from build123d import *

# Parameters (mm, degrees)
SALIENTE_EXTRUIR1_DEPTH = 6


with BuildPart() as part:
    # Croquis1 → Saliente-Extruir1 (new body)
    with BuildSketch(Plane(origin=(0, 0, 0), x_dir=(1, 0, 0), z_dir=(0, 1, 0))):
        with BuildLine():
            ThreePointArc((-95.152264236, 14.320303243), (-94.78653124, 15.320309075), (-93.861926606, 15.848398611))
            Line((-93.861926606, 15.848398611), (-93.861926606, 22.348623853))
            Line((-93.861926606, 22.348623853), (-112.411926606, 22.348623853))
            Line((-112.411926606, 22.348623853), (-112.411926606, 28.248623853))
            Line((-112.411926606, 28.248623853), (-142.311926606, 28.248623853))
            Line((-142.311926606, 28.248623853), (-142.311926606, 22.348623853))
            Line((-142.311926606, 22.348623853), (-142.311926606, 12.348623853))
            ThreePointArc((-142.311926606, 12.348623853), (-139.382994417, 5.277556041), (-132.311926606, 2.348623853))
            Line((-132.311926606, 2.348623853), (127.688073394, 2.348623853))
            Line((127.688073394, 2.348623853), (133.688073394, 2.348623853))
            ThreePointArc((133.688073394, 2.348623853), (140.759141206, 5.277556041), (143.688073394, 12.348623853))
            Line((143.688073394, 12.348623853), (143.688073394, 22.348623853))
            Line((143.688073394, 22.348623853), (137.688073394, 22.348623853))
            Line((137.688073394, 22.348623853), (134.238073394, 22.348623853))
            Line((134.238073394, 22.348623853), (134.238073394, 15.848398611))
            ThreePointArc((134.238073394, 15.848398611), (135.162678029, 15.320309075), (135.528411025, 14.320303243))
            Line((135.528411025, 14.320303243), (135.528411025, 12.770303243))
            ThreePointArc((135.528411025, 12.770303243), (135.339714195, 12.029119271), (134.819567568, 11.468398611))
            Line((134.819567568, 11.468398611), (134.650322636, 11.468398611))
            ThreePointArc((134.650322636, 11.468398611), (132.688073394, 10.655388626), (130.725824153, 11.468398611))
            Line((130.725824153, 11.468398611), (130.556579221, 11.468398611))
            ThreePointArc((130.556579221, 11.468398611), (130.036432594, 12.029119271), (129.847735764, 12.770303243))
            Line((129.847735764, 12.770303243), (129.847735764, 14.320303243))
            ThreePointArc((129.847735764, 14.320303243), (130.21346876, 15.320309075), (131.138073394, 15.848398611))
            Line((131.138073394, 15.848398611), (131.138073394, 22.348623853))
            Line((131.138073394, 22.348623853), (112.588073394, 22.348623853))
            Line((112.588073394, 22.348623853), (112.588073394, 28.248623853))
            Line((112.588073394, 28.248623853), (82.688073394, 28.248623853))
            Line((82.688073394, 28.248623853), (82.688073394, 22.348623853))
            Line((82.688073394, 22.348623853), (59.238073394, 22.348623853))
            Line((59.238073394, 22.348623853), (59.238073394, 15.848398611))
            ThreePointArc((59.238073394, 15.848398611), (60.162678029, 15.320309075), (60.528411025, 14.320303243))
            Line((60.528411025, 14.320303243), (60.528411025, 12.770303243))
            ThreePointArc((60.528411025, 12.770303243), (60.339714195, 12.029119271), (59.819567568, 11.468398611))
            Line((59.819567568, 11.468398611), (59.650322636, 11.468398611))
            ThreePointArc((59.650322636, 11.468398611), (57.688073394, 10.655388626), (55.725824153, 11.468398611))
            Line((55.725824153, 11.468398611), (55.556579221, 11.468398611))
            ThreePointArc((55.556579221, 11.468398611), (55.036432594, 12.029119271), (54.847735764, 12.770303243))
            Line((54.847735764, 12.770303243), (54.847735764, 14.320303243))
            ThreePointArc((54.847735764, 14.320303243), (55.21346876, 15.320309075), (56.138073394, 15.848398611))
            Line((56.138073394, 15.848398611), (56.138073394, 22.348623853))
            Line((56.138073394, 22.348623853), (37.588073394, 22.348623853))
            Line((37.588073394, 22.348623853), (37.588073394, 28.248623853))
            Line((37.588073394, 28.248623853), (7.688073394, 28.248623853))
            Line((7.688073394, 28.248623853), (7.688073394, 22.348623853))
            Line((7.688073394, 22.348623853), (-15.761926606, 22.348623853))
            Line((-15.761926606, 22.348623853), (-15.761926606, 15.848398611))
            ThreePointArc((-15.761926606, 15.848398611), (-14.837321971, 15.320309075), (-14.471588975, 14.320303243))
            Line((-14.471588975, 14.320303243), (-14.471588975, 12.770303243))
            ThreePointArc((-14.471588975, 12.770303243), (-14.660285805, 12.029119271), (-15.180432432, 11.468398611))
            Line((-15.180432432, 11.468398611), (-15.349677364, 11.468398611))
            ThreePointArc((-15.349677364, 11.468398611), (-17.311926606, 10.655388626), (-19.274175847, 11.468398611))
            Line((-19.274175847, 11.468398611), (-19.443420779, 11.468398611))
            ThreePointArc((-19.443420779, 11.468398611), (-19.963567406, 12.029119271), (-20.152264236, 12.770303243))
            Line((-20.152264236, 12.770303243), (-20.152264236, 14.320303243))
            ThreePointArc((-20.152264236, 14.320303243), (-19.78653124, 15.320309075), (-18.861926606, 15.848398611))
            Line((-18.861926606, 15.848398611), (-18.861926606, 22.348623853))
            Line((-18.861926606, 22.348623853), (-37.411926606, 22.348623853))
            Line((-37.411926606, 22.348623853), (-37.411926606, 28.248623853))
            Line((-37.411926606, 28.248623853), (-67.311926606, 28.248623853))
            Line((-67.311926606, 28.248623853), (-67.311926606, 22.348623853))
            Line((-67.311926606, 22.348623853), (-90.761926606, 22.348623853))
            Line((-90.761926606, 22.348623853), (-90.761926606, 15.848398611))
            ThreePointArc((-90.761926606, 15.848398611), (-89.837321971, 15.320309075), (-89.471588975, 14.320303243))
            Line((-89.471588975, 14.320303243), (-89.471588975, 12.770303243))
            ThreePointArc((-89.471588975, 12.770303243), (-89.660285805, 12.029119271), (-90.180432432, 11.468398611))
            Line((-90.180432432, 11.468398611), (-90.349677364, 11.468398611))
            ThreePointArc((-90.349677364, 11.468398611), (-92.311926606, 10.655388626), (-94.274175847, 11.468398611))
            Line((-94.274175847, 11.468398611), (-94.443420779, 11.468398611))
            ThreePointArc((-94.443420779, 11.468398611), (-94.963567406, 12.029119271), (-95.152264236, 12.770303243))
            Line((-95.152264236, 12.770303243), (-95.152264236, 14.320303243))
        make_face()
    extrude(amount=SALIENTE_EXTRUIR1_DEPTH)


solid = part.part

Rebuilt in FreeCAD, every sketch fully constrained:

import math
import FreeCAD as App
import Part
import Sketcher

V = App.Vector

doc = App.newDocument("Part")
body = doc.addObject("PartDesign::Body", "Body")

# Sketch on XZ plane
sketch1 = doc.addObject("Sketcher::SketchObject", "Sketch")
body.addObject(sketch1)
sketch1.AttachmentSupport = (doc.XZ_Plane, [""])
sketch1.MapMode = "FlatFace"
sketch1.addGeometry(Part.ArcOfCircle(Part.Circle(V(-93.6, -14.32, 0), V(0, 0, 1), 1.55), math.radians(180), math.radians(260)), False)
sketch1.addGeometry(Part.LineSegment(V(-93.86, -15.85, 0), V(-93.86, -22.35, 0)), False)
sketch1.addGeometry(Part.LineSegment(V(-93.86, -22.35, 0), V(-112.41, -22.35, 0)), False)
sketch1.addGeometry(Part.LineSegment(V(-112.41, -22.35, 0), V(-112.41, -28.25, 0)), False)
sketch1.addGeometry(Part.LineSegment(V(-112.41, -28.25, 0), V(-142.31, -28.25, 0)), False)
sketch1.addGeometry(Part.LineSegment(V(-142.31, -28.25, 0), V(-142.31, -12.35, 0)), False)
sketch1.addGeometry(Part.ArcOfCircle(Part.Circle(V(-132.31, -12.35, 0), V(0, 0, 1), 10), math.radians(90), math.radians(180)), False)
sketch1.addGeometry(Part.LineSegment(V(-132.31, -2.35, 0), V(133.69, -2.35, 0)), False)
sketch1.addGeometry(Part.ArcOfCircle(Part.Circle(V(133.69, -12.35, 0), V(0, 0, 1), 10), math.radians(0), math.radians(90)), False)
sketch1.addGeometry(Part.LineSegment(V(143.69, -12.35, 0), V(143.69, -22.35, 0)), False)
sketch1.addGeometry(Part.LineSegment(V(143.69, -22.35, 0), V(134.24, -22.35, 0)), False)
sketch1.addGeometry(Part.LineSegment(V(134.24, -22.35, 0), V(134.24, -15.85, 0)), False)
sketch1.addGeometry(Part.ArcOfCircle(Part.Circle(V(133.98, -14.32, 0), V(0, 0, 1), 1.55), math.radians(-80), math.radians(0)), False)
sketch1.addGeometry(Part.LineSegment(V(135.53, -14.32, 0), V(135.53, -12.77, 0)), False)
sketch1.addGeometry(Part.ArcOfCircle(Part.Circle(V(133.98, -12.77, 0), V(0, 0, 1), 1.55), math.radians(0), math.radians(57)), False)
sketch1.addGeometry(Part.LineSegment(V(134.82, -11.47, 0), V(134.65, -11.47, 0)), False)
sketch1.addGeometry(Part.ArcOfCircle(Part.Circle(V(132.69, -13.43, 0), V(0, 0, 1), 2.77), math.radians(45), math.radians(135)), False)
sketch1.addGeometry(Part.LineSegment(V(130.73, -11.47, 0), V(130.56, -11.47, 0)), False)
sketch1.addGeometry(Part.ArcOfCircle(Part.Circle(V(131.4, -12.77, 0), V(0, 0, 1), 1.55), math.radians(123), math.radians(180)), False)
sketch1.addGeometry(Part.LineSegment(V(129.85, -12.77, 0), V(129.85, -14.32, 0)), False)
sketch1.addGeometry(Part.ArcOfCircle(Part.Circle(V(131.4, -14.32, 0), V(0, 0, 1), 1.55), math.radians(180), math.radians(260)), False)
sketch1.addGeometry(Part.LineSegment(V(131.14, -15.85, 0), V(131.14, -22.35, 0)), False)
sketch1.addGeometry(Part.LineSegment(V(131.14, -22.35, 0), V(112.59, -22.35, 0)), False)
sketch1.addGeometry(Part.LineSegment(V(112.59, -22.35, 0), V(112.59, -28.25, 0)), False)
sketch1.addGeometry(Part.LineSegment(V(112.59, -28.25, 0), V(82.69, -28.25, 0)), False)
sketch1.addGeometry(Part.LineSegment(V(82.69, -28.25, 0), V(82.69, -22.35, 0)), False)
sketch1.addGeometry(Part.LineSegment(V(82.69, -22.35, 0), V(59.24, -22.35, 0)), False)
sketch1.addGeometry(Part.LineSegment(V(59.24, -22.35, 0), V(59.24, -15.85, 0)), False)
sketch1.addGeometry(Part.ArcOfCircle(Part.Circle(V(58.98, -14.32, 0), V(0, 0, 1), 1.55), math.radians(-80), math.radians(0)), False)
sketch1.addGeometry(Part.LineSegment(V(60.53, -14.32, 0), V(60.53, -12.77, 0)), False)
sketch1.addGeometry(Part.ArcOfCircle(Part.Circle(V(58.98, -12.77, 0), V(0, 0, 1), 1.55), math.radians(0), math.radians(57)), False)
sketch1.addGeometry(Part.LineSegment(V(59.82, -11.47, 0), V(59.65, -11.47, 0)), False)
sketch1.addGeometry(Part.ArcOfCircle(Part.Circle(V(57.69, -13.43, 0), V(0, 0, 1), 2.77), math.radians(45), math.radians(135)), False)
sketch1.addGeometry(Part.LineSegment(V(55.73, -11.47, 0), V(55.56, -11.47, 0)), False)
sketch1.addGeometry(Part.ArcOfCircle(Part.Circle(V(56.4, -12.77, 0), V(0, 0, 1), 1.55), math.radians(123), math.radians(180)), False)
sketch1.addGeometry(Part.LineSegment(V(54.85, -12.77, 0), V(54.85, -14.32, 0)), False)
sketch1.addGeometry(Part.ArcOfCircle(Part.Circle(V(56.4, -14.32, 0), V(0, 0, 1), 1.55), math.radians(180), math.radians(260)), False)
sketch1.addGeometry(Part.LineSegment(V(56.14, -15.85, 0), V(56.14, -22.35, 0)), False)
sketch1.addGeometry(Part.LineSegment(V(56.14, -22.35, 0), V(37.59, -22.35, 0)), False)
sketch1.addGeometry(Part.LineSegment(V(37.59, -22.35, 0), V(37.59, -28.25, 0)), False)
sketch1.addGeometry(Part.LineSegment(V(37.59, -28.25, 0), V(7.69, -28.25, 0)), False)
sketch1.addGeometry(Part.LineSegment(V(7.69, -28.25, 0), V(7.69, -22.35, 0)), False)
sketch1.addGeometry(Part.LineSegment(V(7.69, -22.35, 0), V(-15.76, -22.35, 0)), False)
sketch1.addGeometry(Part.LineSegment(V(-15.76, -22.35, 0), V(-15.76, -15.85, 0)), False)
sketch1.addGeometry(Part.ArcOfCircle(Part.Circle(V(-16.02, -14.32, 0), V(0, 0, 1), 1.55), math.radians(-80), math.radians(0)), False)
sketch1.addGeometry(Part.LineSegment(V(-14.47, -14.32, 0), V(-14.47, -12.77, 0)), False)
sketch1.addGeometry(Part.ArcOfCircle(Part.Circle(V(-16.02, -12.77, 0), V(0, 0, 1), 1.55), math.radians(0), math.radians(57)), False)
sketch1.addGeometry(Part.LineSegment(V(-15.18, -11.47, 0), V(-15.35, -11.47, 0)), False)
sketch1.addGeometry(Part.ArcOfCircle(Part.Circle(V(-17.31, -13.43, 0), V(0, 0, 1), 2.77), math.radians(45), math.radians(135)), False)
sketch1.addGeometry(Part.LineSegment(V(-19.27, -11.47, 0), V(-19.44, -11.47, 0)), False)
sketch1.addGeometry(Part.ArcOfCircle(Part.Circle(V(-18.6, -12.77, 0), V(0, 0, 1), 1.55), math.radians(123), math.radians(180)), False)
sketch1.addGeometry(Part.LineSegment(V(-20.15, -12.77, 0), V(-20.15, -14.32, 0)), False)
sketch1.addGeometry(Part.ArcOfCircle(Part.Circle(V(-18.6, -14.32, 0), V(0, 0, 1), 1.55), math.radians(180), math.radians(260)), False)
sketch1.addGeometry(Part.LineSegment(V(-18.86, -15.85, 0), V(-18.86, -22.35, 0)), False)
sketch1.addGeometry(Part.LineSegment(V(-18.86, -22.35, 0), V(-37.41, -22.35, 0)), False)
sketch1.addGeometry(Part.LineSegment(V(-37.41, -22.35, 0), V(-37.41, -28.25, 0)), False)
sketch1.addGeometry(Part.LineSegment(V(-37.41, -28.25, 0), V(-67.31, -28.25, 0)), False)
sketch1.addGeometry(Part.LineSegment(V(-67.31, -28.25, 0), V(-67.31, -22.35, 0)), False)
sketch1.addGeometry(Part.LineSegment(V(-67.31, -22.35, 0), V(-90.76, -22.35, 0)), False)
sketch1.addGeometry(Part.LineSegment(V(-90.76, -22.35, 0), V(-90.76, -15.85, 0)), False)
sketch1.addGeometry(Part.ArcOfCircle(Part.Circle(V(-91.02, -14.32, 0), V(0, 0, 1), 1.55), math.radians(-80), math.radians(0)), False)
sketch1.addGeometry(Part.LineSegment(V(-89.47, -14.32, 0), V(-89.47, -12.77, 0)), False)
sketch1.addGeometry(Part.ArcOfCircle(Part.Circle(V(-91.02, -12.77, 0), V(0, 0, 1), 1.55), math.radians(0), math.radians(57)), False)
sketch1.addGeometry(Part.LineSegment(V(-90.18, -11.47, 0), V(-90.35, -11.47, 0)), False)
sketch1.addGeometry(Part.ArcOfCircle(Part.Circle(V(-92.31, -13.43, 0), V(0, 0, 1), 2.77), math.radians(45), math.radians(135)), False)
sketch1.addGeometry(Part.LineSegment(V(-94.27, -11.47, 0), V(-94.44, -11.47, 0)), False)
sketch1.addGeometry(Part.ArcOfCircle(Part.Circle(V(-93.6, -12.77, 0), V(0, 0, 1), 1.55), math.radians(123), math.radians(180)), False)
sketch1.addGeometry(Part.LineSegment(V(-95.15, -12.77, 0), V(-95.15, -14.32, 0)), False)
sketch1.addConstraint(Sketcher.Constraint("Coincident", 0, 2, 1, 1))
sketch1.addConstraint(Sketcher.Constraint("Coincident", 1, 2, 2, 1))
sketch1.addConstraint(Sketcher.Constraint("Coincident", 2, 2, 3, 1))
sketch1.addConstraint(Sketcher.Constraint("Coincident", 3, 2, 4, 1))
sketch1.addConstraint(Sketcher.Constraint("Coincident", 4, 2, 5, 1))
sketch1.addConstraint(Sketcher.Constraint("Tangent", 5, 2, 6, 2))
sketch1.addConstraint(Sketcher.Constraint("Tangent", 6, 1, 7, 1))
sketch1.addConstraint(Sketcher.Constraint("Tangent", 7, 2, 8, 2))
sketch1.addConstraint(Sketcher.Constraint("Tangent", 8, 1, 9, 1))
sketch1.addConstraint(Sketcher.Constraint("Coincident", 9, 2, 10, 1))
sketch1.addConstraint(Sketcher.Constraint("Coincident", 10, 2, 11, 1))
sketch1.addConstraint(Sketcher.Constraint("Coincident", 11, 2, 12, 1))
sketch1.addConstraint(Sketcher.Constraint("Tangent", 12, 2, 13, 1))
sketch1.addConstraint(Sketcher.Constraint("Tangent", 13, 2, 14, 1))
sketch1.addConstraint(Sketcher.Constraint("Coincident", 14, 2, 15, 1))
sketch1.addConstraint(Sketcher.Constraint("Coincident", 15, 2, 16, 1))
sketch1.addConstraint(Sketcher.Constraint("Coincident", 16, 2, 17, 1))
sketch1.addConstraint(Sketcher.Constraint("Coincident", 17, 2, 18, 1))
sketch1.addConstraint(Sketcher.Constraint("Tangent", 18, 2, 19, 1))
sketch1.addConstraint(Sketcher.Constraint("Tangent", 19, 2, 20, 1))
sketch1.addConstraint(Sketcher.Constraint("Coincident", 20, 2, 21, 1))
sketch1.addConstraint(Sketcher.Constraint("Coincident", 21, 2, 22, 1))
sketch1.addConstraint(Sketcher.Constraint("Coincident", 22, 2, 23, 1))
sketch1.addConstraint(Sketcher.Constraint("Coincident", 23, 2, 24, 1))
sketch1.addConstraint(Sketcher.Constraint("Coincident", 24, 2, 25, 1))
sketch1.addConstraint(Sketcher.Constraint("Coincident", 25, 2, 26, 1))
sketch1.addConstraint(Sketcher.Constraint("Coincident", 26, 2, 27, 1))
sketch1.addConstraint(Sketcher.Constraint("Coincident", 27, 2, 28, 1))
sketch1.addConstraint(Sketcher.Constraint("Tangent", 28, 2, 29, 1))
sketch1.addConstraint(Sketcher.Constraint("Tangent", 29, 2, 30, 1))
sketch1.addConstraint(Sketcher.Constraint("Coincident", 30, 2, 31, 1))
sketch1.addConstraint(Sketcher.Constraint("Coincident", 31, 2, 32, 1))
sketch1.addConstraint(Sketcher.Constraint("Coincident", 32, 2, 33, 1))
sketch1.addConstraint(Sketcher.Constraint("Coincident", 33, 2, 34, 1))
sketch1.addConstraint(Sketcher.Constraint("Tangent", 34, 2, 35, 1))
sketch1.addConstraint(Sketcher.Constraint("Tangent", 35, 2, 36, 1))
sketch1.addConstraint(Sketcher.Constraint("Coincident", 36, 2, 37, 1))
sketch1.addConstraint(Sketcher.Constraint("Coincident", 37, 2, 38, 1))
sketch1.addConstraint(Sketcher.Constraint("Coincident", 38, 2, 39, 1))
sketch1.addConstraint(Sketcher.Constraint("Coincident", 39, 2, 40, 1))
sketch1.addConstraint(Sketcher.Constraint("Coincident", 40, 2, 41, 1))
sketch1.addConstraint(Sketcher.Constraint("Coincident", 41, 2, 42, 1))
sketch1.addConstraint(Sketcher.Constraint("Coincident", 42, 2, 43, 1))
sketch1.addConstraint(Sketcher.Constraint("Coincident", 43, 2, 44, 1))
sketch1.addConstraint(Sketcher.Constraint("Tangent", 44, 2, 45, 1))
sketch1.addConstraint(Sketcher.Constraint("Tangent", 45, 2, 46, 1))
sketch1.addConstraint(Sketcher.Constraint("Coincident", 46, 2, 47, 1))
sketch1.addConstraint(Sketcher.Constraint("Coincident", 47, 2, 48, 1))
sketch1.addConstraint(Sketcher.Constraint("Coincident", 48, 2, 49, 1))
sketch1.addConstraint(Sketcher.Constraint("Coincident", 49, 2, 50, 1))
sketch1.addConstraint(Sketcher.Constraint("Tangent", 50, 2, 51, 1))
sketch1.addConstraint(Sketcher.Constraint("Tangent", 51, 2, 52, 1))
sketch1.addConstraint(Sketcher.Constraint("Coincident", 52, 2, 53, 1))
sketch1.addConstraint(Sketcher.Constraint("Coincident", 53, 2, 54, 1))
sketch1.addConstraint(Sketcher.Constraint("Coincident", 54, 2, 55, 1))
sketch1.addConstraint(Sketcher.Constraint("Coincident", 55, 2, 56, 1))
sketch1.addConstraint(Sketcher.Constraint("Coincident", 56, 2, 57, 1))
sketch1.addConstraint(Sketcher.Constraint("Coincident", 57, 2, 58, 1))
sketch1.addConstraint(Sketcher.Constraint("Coincident", 58, 2, 59, 1))
sketch1.addConstraint(Sketcher.Constraint("Coincident", 59, 2, 60, 1))
sketch1.addConstraint(Sketcher.Constraint("Tangent", 60, 2, 61, 1))
sketch1.addConstraint(Sketcher.Constraint("Tangent", 61, 2, 62, 1))
sketch1.addConstraint(Sketcher.Constraint("Coincident", 62, 2, 63, 1))
sketch1.addConstraint(Sketcher.Constraint("Coincident", 63, 2, 64, 1))
sketch1.addConstraint(Sketcher.Constraint("Coincident", 64, 2, 65, 1))
sketch1.addConstraint(Sketcher.Constraint("Coincident", 65, 2, 66, 1))
sketch1.addConstraint(Sketcher.Constraint("Tangent", 66, 2, 67, 1))
sketch1.addConstraint(Sketcher.Constraint("Tangent", 67, 2, 0, 1))
sketch1.addConstraint(Sketcher.Constraint("Vertical", 1))
sketch1.addConstraint(Sketcher.Constraint("Horizontal", 2))
sketch1.addConstraint(Sketcher.Constraint("Vertical", 3))
sketch1.addConstraint(Sketcher.Constraint("Horizontal", 4))
sketch1.addConstraint(Sketcher.Constraint("Vertical", 5))
sketch1.addConstraint(Sketcher.Constraint("Horizontal", 7))
sketch1.addConstraint(Sketcher.Constraint("Vertical", 9))
sketch1.addConstraint(Sketcher.Constraint("Horizontal", 10))
sketch1.addConstraint(Sketcher.Constraint("Vertical", 11))
sketch1.addConstraint(Sketcher.Constraint("Vertical", 13))
sketch1.addConstraint(Sketcher.Constraint("Horizontal", 15))
sketch1.addConstraint(Sketcher.Constraint("Horizontal", 17))
sketch1.addConstraint(Sketcher.Constraint("Vertical", 19))
sketch1.addConstraint(Sketcher.Constraint("Vertical", 21))
sketch1.addConstraint(Sketcher.Constraint("Horizontal", 22))
sketch1.addConstraint(Sketcher.Constraint("Vertical", 23))
sketch1.addConstraint(Sketcher.Constraint("Horizontal", 24))
sketch1.addConstraint(Sketcher.Constraint("Vertical", 25))
sketch1.addConstraint(Sketcher.Constraint("Horizontal", 26))
sketch1.addConstraint(Sketcher.Constraint("Vertical", 27))
sketch1.addConstraint(Sketcher.Constraint("Vertical", 29))
sketch1.addConstraint(Sketcher.Constraint("Horizontal", 31))
sketch1.addConstraint(Sketcher.Constraint("Horizontal", 33))
sketch1.addConstraint(Sketcher.Constraint("Vertical", 35))
sketch1.addConstraint(Sketcher.Constraint("Vertical", 37))
sketch1.addConstraint(Sketcher.Constraint("Horizontal", 38))
sketch1.addConstraint(Sketcher.Constraint("Vertical", 39))
sketch1.addConstraint(Sketcher.Constraint("Horizontal", 40))
sketch1.addConstraint(Sketcher.Constraint("Vertical", 41))
sketch1.addConstraint(Sketcher.Constraint("Horizontal", 42))
sketch1.addConstraint(Sketcher.Constraint("Vertical", 43))
sketch1.addConstraint(Sketcher.Constraint("Vertical", 45))
sketch1.addConstraint(Sketcher.Constraint("Horizontal", 47))
sketch1.addConstraint(Sketcher.Constraint("Horizontal", 49))
sketch1.addConstraint(Sketcher.Constraint("Vertical", 51))
sketch1.addConstraint(Sketcher.Constraint("Vertical", 53))
sketch1.addConstraint(Sketcher.Constraint("Horizontal", 54))
sketch1.addConstraint(Sketcher.Constraint("Vertical", 55))
sketch1.addConstraint(Sketcher.Constraint("Horizontal", 56))
sketch1.addConstraint(Sketcher.Constraint("Vertical", 57))
sketch1.addConstraint(Sketcher.Constraint("Horizontal", 58))
sketch1.addConstraint(Sketcher.Constraint("Vertical", 59))
sketch1.addConstraint(Sketcher.Constraint("Vertical", 61))
sketch1.addConstraint(Sketcher.Constraint("Horizontal", 63))
sketch1.addConstraint(Sketcher.Constraint("Horizontal", 65))
sketch1.addConstraint(Sketcher.Constraint("Vertical", 67))
sketch1.addConstraint(Sketcher.Constraint("Equal", 6, 8))
sketch1.addConstraint(Sketcher.Constraint("Equal", 0, 12))
sketch1.addConstraint(Sketcher.Constraint("Equal", 12, 14))
sketch1.addConstraint(Sketcher.Constraint("Equal", 14, 18))
sketch1.addConstraint(Sketcher.Constraint("Equal", 18, 20))
sketch1.addConstraint(Sketcher.Constraint("Equal", 20, 28))
sketch1.addConstraint(Sketcher.Constraint("Equal", 28, 30))
sketch1.addConstraint(Sketcher.Constraint("Equal", 16, 32))
sketch1.addConstraint(Sketcher.Constraint("Equal", 30, 34))
sketch1.addConstraint(Sketcher.Constraint("Equal", 34, 36))
sketch1.addConstraint(Sketcher.Constraint("Equal", 36, 44))
sketch1.addConstraint(Sketcher.Constraint("Equal", 44, 46))
sketch1.addConstraint(Sketcher.Constraint("Equal", 32, 48))
sketch1.addConstraint(Sketcher.Constraint("Equal", 46, 50))
sketch1.addConstraint(Sketcher.Constraint("Equal", 50, 52))
sketch1.addConstraint(Sketcher.Constraint("Equal", 52, 60))
sketch1.addConstraint(Sketcher.Constraint("Equal", 60, 62))
sketch1.addConstraint(Sketcher.Constraint("Equal", 48, 64))
sketch1.addConstraint(Sketcher.Constraint("Equal", 62, 66))
sketch1.addConstraint(Sketcher.Constraint("Horizontal", 0, 3, 12, 3))
sketch1.addConstraint(Sketcher.Constraint("Horizontal", 14, 3, 18, 3))
sketch1.addConstraint(Sketcher.Constraint("Horizontal", 12, 3, 20, 3))
sketch1.addConstraint(Sketcher.Constraint("Horizontal", 20, 3, 28, 3))
sketch1.addConstraint(Sketcher.Constraint("Horizontal", 18, 3, 30, 3))
sketch1.addConstraint(Sketcher.Constraint("Horizontal", 16, 3, 32, 3))
sketch1.addConstraint(Sketcher.Constraint("Horizontal", 30, 3, 34, 3))
sketch1.addConstraint(Sketcher.Constraint("Horizontal", 28, 3, 36, 3))
sketch1.addConstraint(Sketcher.Constraint("Horizontal", 36, 3, 44, 3))
sketch1.addConstraint(Sketcher.Constraint("Horizontal", 34, 3, 46, 3))
sketch1.addConstraint(Sketcher.Constraint("Horizontal", 32, 3, 48, 3))
sketch1.addConstraint(Sketcher.Constraint("Horizontal", 46, 3, 50, 3))
sketch1.addConstraint(Sketcher.Constraint("Horizontal", 44, 3, 52, 3))
sketch1.addConstraint(Sketcher.Constraint("Horizontal", 52, 3, 60, 3))
sketch1.addConstraint(Sketcher.Constraint("Horizontal", 50, 3, 62, 3))
sketch1.addConstraint(Sketcher.Constraint("Horizontal", 48, 3, 64, 3))
sketch1.addConstraint(Sketcher.Constraint("Horizontal", 62, 3, 66, 3))
sketch1.addConstraint(Sketcher.Constraint("Horizontal", 2, 2, 9, 2))
sketch1.addConstraint(Sketcher.Constraint("Horizontal", 0, 2, 11, 2))
sketch1.addConstraint(Sketcher.Constraint("Horizontal", 15, 2, 16, 2))
sketch1.addConstraint(Sketcher.Constraint("Horizontal", 11, 2, 20, 2))
sketch1.addConstraint(Sketcher.Constraint("Horizontal", 10, 2, 21, 2))
sketch1.addConstraint(Sketcher.Constraint("Horizontal", 4, 2, 23, 2))
sketch1.addConstraint(Sketcher.Constraint("Horizontal", 22, 2, 25, 2))
sketch1.addConstraint(Sketcher.Constraint("Horizontal", 20, 2, 27, 2))
sketch1.addConstraint(Sketcher.Constraint("Horizontal", 17, 2, 30, 2))
sketch1.addConstraint(Sketcher.Constraint("Horizontal", 31, 2, 32, 2))
sketch1.addConstraint(Sketcher.Constraint("Horizontal", 27, 2, 36, 2))
sketch1.addConstraint(Sketcher.Constraint("Horizontal", 26, 2, 37, 2))
sketch1.addConstraint(Sketcher.Constraint("Horizontal", 24, 2, 39, 2))
sketch1.addConstraint(Sketcher.Constraint("Horizontal", 38, 2, 41, 2))
sketch1.addConstraint(Sketcher.Constraint("Horizontal", 36, 2, 43, 2))
sketch1.addConstraint(Sketcher.Constraint("Horizontal", 33, 2, 46, 2))
sketch1.addConstraint(Sketcher.Constraint("Horizontal", 47, 2, 48, 2))
sketch1.addConstraint(Sketcher.Constraint("Horizontal", 43, 2, 52, 2))
sketch1.addConstraint(Sketcher.Constraint("Horizontal", 42, 2, 53, 2))
sketch1.addConstraint(Sketcher.Constraint("Horizontal", 40, 2, 55, 2))
sketch1.addConstraint(Sketcher.Constraint("Horizontal", 54, 2, 57, 2))
sketch1.addConstraint(Sketcher.Constraint("Horizontal", 52, 2, 59, 2))
sketch1.addConstraint(Sketcher.Constraint("Horizontal", 49, 2, 62, 2))
sketch1.addConstraint(Sketcher.Constraint("Horizontal", 63, 2, 64, 2))
sketch1.addConstraint(Sketcher.Constraint("Equal", 15, 17))
sketch1.addConstraint(Sketcher.Constraint("Equal", 2, 22))
sketch1.addConstraint(Sketcher.Constraint("Equal", 4, 24))
sketch1.addConstraint(Sketcher.Constraint("Equal", 17, 31))
sketch1.addConstraint(Sketcher.Constraint("Equal", 31, 33))
sketch1.addConstraint(Sketcher.Constraint("Equal", 22, 38))
sketch1.addConstraint(Sketcher.Constraint("Equal", 24, 40))
sketch1.addConstraint(Sketcher.Constraint("Equal", 26, 42))
sketch1.addConstraint(Sketcher.Constraint("Equal", 33, 47))
sketch1.addConstraint(Sketcher.Constraint("Equal", 47, 49))
sketch1.addConstraint(Sketcher.Constraint("Equal", 38, 54))
sketch1.addConstraint(Sketcher.Constraint("Equal", 40, 56))
sketch1.addConstraint(Sketcher.Constraint("Equal", 42, 58))
sketch1.addConstraint(Sketcher.Constraint("Equal", 49, 63))
sketch1.addConstraint(Sketcher.Constraint("Equal", 63, 65))
sketch1.addConstraint(Sketcher.Constraint("Radius", 6, 10.0))
sketch1.addConstraint(Sketcher.Constraint("DistanceX", 7, 1, 7, 2, 266.0))
sketch1.addConstraint(Sketcher.Constraint("DistanceY", 9, 2, 9, 1, 10.0))
sketch1.addConstraint(Sketcher.Constraint("Radius", 0, 1.55))
sketch1.addConstraint(Sketcher.Constraint("DistanceX", 4, 2, 4, 1, 29.9))
sketch1.addConstraint(Sketcher.Constraint("DistanceY", 3, 2, 3, 1, 5.9))
sketch1.addConstraint(Sketcher.Constraint("DistanceX", 2, 2, 2, 1, 18.55))
sketch1.addConstraint(Sketcher.Constraint("DistanceX", 10, 2, 10, 1, 9.45))
sketch1.addConstraint(Sketcher.Constraint("DistanceX", 26, 2, 26, 1, 23.45))
sketch1.addConstraint(Sketcher.Constraint("DistanceY", 13, 1, 13, 2, 1.55))
sketch1.addConstraint(Sketcher.Constraint("Radius", 16, 2.774509))
sketch1.addConstraint(Sketcher.Constraint("DistanceY", 0, 2, -1, 1, 15.848399))
sketch1.addConstraint(Sketcher.Constraint("DistanceY", 14, 2, -1, 1, 11.468399))
sketch1.addConstraint(Sketcher.Constraint("DistanceX", 15, 2, 15, 1, 0.169245))
sketch1.addConstraint(Sketcher.Constraint("DistanceY", 1, 2, 1, 1, 6.500225))
sketch1.addConstraint(Sketcher.Constraint("DistanceX", -1, 1, 12, 3, 133.978411))
sketch1.addConstraint(Sketcher.Constraint("DistanceX", -1, 1, 17, 2, 130.556579))
pad1 = doc.addObject("PartDesign::Pad", "Pad")
body.addObject(pad1)
pad1.Profile = sketch1
pad1.Length = 6
pad1.Reversed = True

doc.recompute()
